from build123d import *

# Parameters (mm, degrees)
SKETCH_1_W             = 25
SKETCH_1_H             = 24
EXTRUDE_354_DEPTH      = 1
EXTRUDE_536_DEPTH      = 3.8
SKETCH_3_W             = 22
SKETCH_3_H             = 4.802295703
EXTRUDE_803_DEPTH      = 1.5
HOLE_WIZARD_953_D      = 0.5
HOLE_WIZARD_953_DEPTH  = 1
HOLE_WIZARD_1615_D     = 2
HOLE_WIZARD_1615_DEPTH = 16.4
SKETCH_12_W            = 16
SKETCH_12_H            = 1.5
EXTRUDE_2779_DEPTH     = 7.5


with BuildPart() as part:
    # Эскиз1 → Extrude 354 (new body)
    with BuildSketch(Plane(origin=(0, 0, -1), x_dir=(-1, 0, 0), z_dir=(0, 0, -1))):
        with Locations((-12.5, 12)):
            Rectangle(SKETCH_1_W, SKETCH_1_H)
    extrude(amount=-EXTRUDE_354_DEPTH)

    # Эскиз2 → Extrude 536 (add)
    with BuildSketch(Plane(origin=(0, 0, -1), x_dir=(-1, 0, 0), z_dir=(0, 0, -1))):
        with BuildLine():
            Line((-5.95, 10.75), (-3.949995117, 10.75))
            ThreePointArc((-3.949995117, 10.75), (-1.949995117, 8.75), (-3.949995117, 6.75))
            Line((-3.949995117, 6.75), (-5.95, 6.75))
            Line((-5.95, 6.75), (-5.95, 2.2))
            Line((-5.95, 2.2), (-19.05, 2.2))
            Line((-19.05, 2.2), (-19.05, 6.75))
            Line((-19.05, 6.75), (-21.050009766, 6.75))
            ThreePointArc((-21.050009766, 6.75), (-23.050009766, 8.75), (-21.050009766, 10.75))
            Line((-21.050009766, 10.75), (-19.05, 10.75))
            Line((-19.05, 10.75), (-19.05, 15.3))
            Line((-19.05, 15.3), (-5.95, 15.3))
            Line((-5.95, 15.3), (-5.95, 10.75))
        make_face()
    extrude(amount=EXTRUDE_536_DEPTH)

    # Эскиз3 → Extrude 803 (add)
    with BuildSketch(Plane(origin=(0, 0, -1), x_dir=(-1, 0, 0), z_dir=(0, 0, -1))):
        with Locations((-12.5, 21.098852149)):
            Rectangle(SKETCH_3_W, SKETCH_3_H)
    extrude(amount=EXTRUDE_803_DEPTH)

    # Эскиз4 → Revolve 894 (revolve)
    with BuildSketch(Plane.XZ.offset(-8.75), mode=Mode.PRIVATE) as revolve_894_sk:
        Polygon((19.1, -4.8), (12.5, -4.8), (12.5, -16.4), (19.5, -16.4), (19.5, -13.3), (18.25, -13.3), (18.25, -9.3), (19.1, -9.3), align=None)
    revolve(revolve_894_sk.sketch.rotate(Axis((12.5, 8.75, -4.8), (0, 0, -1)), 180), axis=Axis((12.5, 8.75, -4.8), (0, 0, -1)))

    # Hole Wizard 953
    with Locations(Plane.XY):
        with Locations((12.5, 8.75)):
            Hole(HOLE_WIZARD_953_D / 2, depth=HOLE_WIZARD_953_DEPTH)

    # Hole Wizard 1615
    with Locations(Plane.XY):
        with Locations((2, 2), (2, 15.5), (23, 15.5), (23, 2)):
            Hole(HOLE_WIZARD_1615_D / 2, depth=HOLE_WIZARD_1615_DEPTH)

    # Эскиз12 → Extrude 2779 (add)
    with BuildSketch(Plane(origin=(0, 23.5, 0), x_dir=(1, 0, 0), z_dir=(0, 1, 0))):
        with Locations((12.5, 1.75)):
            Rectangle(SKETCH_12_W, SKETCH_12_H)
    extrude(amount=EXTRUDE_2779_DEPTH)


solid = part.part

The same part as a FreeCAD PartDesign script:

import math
import FreeCAD as App
import Part
import Sketcher
Q = App.Units.Quantity


def add_polygon(sketch, points):
    """Adds a closed chain of lines whose ends are joined by coincident constraints."""
    first, n = sketch.GeometryCount, len(points)
    for a, b in zip(points, points[1:] + points[:1]):
        sketch.addGeometry(Part.LineSegment(App.Vector(*a, 0), App.Vector(*b, 0)), False)
    for i in range(n):
        sketch.addConstraint(Sketcher.Constraint("Coincident", first + i, 2, first + (i + 1) % n, 1))

doc = App.newDocument("Part")
body = doc.addObject("PartDesign::Body", "Body")

sketch1 = body.newObject("Sketcher::SketchObject", "Sketch")
sketch1.AttachmentSupport = (doc.getObject("XY_Plane"), [""])
sketch1.MapMode = "FlatFace"
sketch1.AttachmentOffset = App.Placement(App.Vector(0, 0, -1), App.Rotation())
add_polygon(sketch1, [(25, 24), (25, 0), (0, 0), (0, 24)])
sketch1.addConstraint([
    Sketcher.Constraint("Vertical", 0),
    Sketcher.Constraint("Horizontal", 1),
    Sketcher.Constraint("Vertical", 2),
    Sketcher.Constraint("Horizontal", 3),
    Sketcher.Constraint("Coincident", 1, 2, -1, 1),
    Sketcher.Constraint("DistanceX", 1, 2, 1, 1, Q("25 mm")),
    Sketcher.Constraint("DistanceY", 0, 2, 0, 1, Q("24 mm")),
])
pad1 = body.newObject("PartDesign::Pad", "Pad")
pad1.Profile = sketch1
pad1.Length = 1

sketch2 = body.newObject("Sketcher::SketchObject", "Sketch001")
sketch2.AttachmentSupport = (doc.getObject("XY_Plane"), [""])
sketch2.MapMode = "FlatFace"
sketch2.AttachmentOffset = App.Placement(App.Vector(0, 0, -1), App.Rotation())
sketch2.addGeometry([
    Part.LineSegment(App.Vector(3.949995, 10.75, 0), App.Vector(5.95, 10.75, 0)),
    Part.LineSegment(App.Vector(5.95, 10.75, 0), App.Vector(5.95, 15.3, 0)),
    Part.LineSegment(App.Vector(5.95, 15.3, 0), App.Vector(19.05, 15.3, 0)),
    Part.LineSegment(App.Vector(19.05, 15.3, 0), App.Vector(19.05, 10.75, 0)),
    Part.LineSegment(App.Vector(19.05, 10.75, 0), App.Vector(21.05001, 10.75, 0)),
    Part.ArcOfCircle(Part.Circle(App.Vector(21.05001, 8.75, 0), App.Vector(0, 0, 1), 2), math.radians(-90), math.radians(90)),
    Part.LineSegment(App.Vector(21.05001, 6.75, 0), App.Vector(19.05, 6.75, 0)),
    Part.LineSegment(App.Vector(19.05, 6.75, 0), App.Vector(19.05, 2.2, 0)),
    Part.LineSegment(App.Vector(19.05, 2.2, 0), App.Vector(5.95, 2.2, 0)),
    Part.LineSegment(App.Vector(5.95, 2.2, 0), App.Vector(5.95, 6.75, 0)),
    Part.LineSegment(App.Vector(5.95, 6.75, 0), App.Vector(3.949995, 6.75, 0)),
    Part.ArcOfCircle(Part.Circle(App.Vector(3.949995, 8.75, 0), App.Vector(0, 0, 1), 2), math.radians(90), math.radians(270)),
], False)
sketch2.addConstraint([
    Sketcher.Constraint("Coincident", 0, 2, 1, 1),
    Sketcher.Constraint("Coincident", 1, 2, 2, 1),
    Sketcher.Constraint("Coincident", 2, 2, 3, 1),
    Sketcher.Constraint("Coincident", 3, 2, 4, 1),
    Sketcher.Constraint("Tangent", 4, 2, 5, 2),
    Sketcher.Constraint("Tangent", 5, 1, 6, 1),
    Sketcher.Constraint("Coincident", 6, 2, 7, 1),
    Sketcher.Constraint("Coincident", 7, 2, 8, 1),
    Sketcher.Constraint("Coincident", 8, 2, 9, 1),
    Sketcher.Constraint("Coincident", 9, 2, 10, 1),
    Sketcher.Constraint("Tangent", 10, 2, 11, 2),
    Sketcher.Constraint("Tangent", 11, 1, 0, 1),
    Sketcher.Constraint("Horizontal", 0),
    Sketcher.Constraint("Vertical", 1),
    Sketcher.Constraint("Horizontal", 2),
    Sketcher.Constraint("Vertical", 3),
    Sketcher.Constraint("Horizontal", 4),
    Sketcher.Constraint("Horizontal", 6),
    Sketcher.Constraint("Vertical", 7),
    Sketcher.Constraint("Horizontal", 8),
    Sketcher.Constraint("Vertical", 9),
    Sketcher.Constraint("Horizontal", 10),
    Sketcher.Constraint("Equal", 5, 11),
    Sketcher.Constraint("Horizontal", 5, 3, 11, 3),
    Sketcher.Constraint("Vertical", 3, 2, 6, 2),
    Sketcher.Constraint("Vertical", 1, 2, 8, 2),
    Sketcher.Constraint("Equal", 3, 7),
    Sketcher.Constraint("Radius", 5, Q("2 mm")),
    Sketcher.Constraint("DistanceX", 2, 1, 2, 2, Q("13.1 mm")),
    Sketcher.Constraint("DistanceY", 1, 1, 1, 2, Q("4.55 mm")),
    Sketcher.Constraint("DistanceY", -1, 1, 1, 2, Q("15.3 mm")),
    Sketcher.Constraint("DistanceX", -1, 1, 0, 2, Q("5.95 mm")),
    Sketcher.Constraint("DistanceX", 4, 1, 4, 2, Q("2.00001 mm")),
    Sketcher.Constraint("DistanceX", 0, 1, 0, 2, Q("2.000005 mm")),
])
pad2 = body.newObject("PartDesign::Pad", "Pad001")
pad2.Profile = sketch2
pad2.Length = 3.8
pad2.Reversed = True

sketch3 = body.newObject("Sketcher::SketchObject", "Sketch002")
sketch3.AttachmentSupport = (doc.getObject("XY_Plane"), [""])
sketch3.MapMode = "FlatFace"
sketch3.AttachmentOffset = App.Placement(App.Vector(0, 0, -1), App.Rotation())
add_polygon(sketch3, [(23.5, 23.5), (23.5, 18.697704), (1.5, 18.697704), (1.5, 23.5)])
sketch3.addConstraint([
    Sketcher.Constraint("Vertical", 0),
    Sketcher.Constraint("Horizontal", 1),
    Sketcher.Constraint("Vertical", 2),
    Sketcher.Constraint("Horizontal", 3),
    Sketcher.Constraint("DistanceX", 1, 2, 1, 1, Q("22 mm")),
    Sketcher.Constraint("DistanceX", -1, 1, 0, 2, Q("23.5 mm")),
    Sketcher.Constraint("DistanceY", -1, 1, 2, 2, Q("23.5 mm")),
    Sketcher.Constraint("DistanceY", 0, 2, 0, 1, Q("4.802296 mm")),
])
pad3 = body.newObject("PartDesign::Pad", "Pad002")
pad3.Profile = sketch3
pad3.Length = 1.5
pad3.Reversed = True

sketch4 = body.newObject("Sketcher::SketchObject", "Sketch003")
sketch4.AttachmentSupport = (doc.getObject("XZ_Plane"), [""])
sketch4.MapMode = "FlatFace"
sketch4.AttachmentOffset = App.Placement(App.Vector(0, 0, -8.75), App.Rotation())
add_polygon(sketch4, [(19.1, -4.8), (12.5, -4.8), (12.5, -16.4), (19.5, -16.4), (19.5, -13.3), (18.25, -13.3), (18.25, -9.3), (19.1, -9.3)])
sketch4.addGeometry(Part.LineSegment(App.Vector(12.5, -4.8, 0), App.Vector(12.5, -16.4, 0)), True)
sketch4.addConstraint([
    Sketcher.Constraint("Horizontal", 0),
    Sketcher.Constraint("Vertical", 1),
    Sketcher.Constraint("Horizontal", 2),
    Sketcher.Constraint("Vertical", 3),
    Sketcher.Constraint("Horizontal", 4),
    Sketcher.Constraint("Vertical", 5),
    Sketcher.Constraint("Horizontal", 6),
    Sketcher.Constraint("Vertical", 7),
    Sketcher.Constraint("Vertical", 8),
    Sketcher.Constraint("Coincident", 8, 1, 0, 2),
    Sketcher.Constraint("Horizontal", 2, 2, 8, 2),
    Sketcher.Constraint("DistanceX", 2, 1, 2, 2, Q("7 mm")),
    Sketcher.Constraint("DistanceY", 5, 1, 5, 2, Q("4 mm")),
    Sketcher.Constraint("DistanceX", 0, 2, 0, 1, Q("6.6 mm")),
    Sketcher.Constraint("DistanceY", 1, 2, 1, 1, Q("11.6 mm")),
    Sketcher.Constraint("DistanceY", 3, 1, 3, 2, Q("3.1 mm")),
    Sketcher.Constraint("DistanceX", 4, 2, 4, 1, Q("1.25 mm")),
    Sketcher.Constraint("DistanceX", -1, 1, 0, 2, Q("12.5 mm")),
    Sketcher.Constraint("DistanceY", 0, 2, -1, 1, Q("4.8 mm")),
])
revolution = body.newObject("PartDesign::Revolution", "Revolution")
revolution.Profile = sketch4
revolution.ReferenceAxis = (sketch4, ["Axis0"])
revolution.Angle = 360

sketch5 = body.newObject("Sketcher::SketchObject", "Sketch004")
sketch5.AttachmentSupport = (doc.getObject("XY_Plane"), [""])
sketch5.MapMode = "FlatFace"
sketch5.addGeometry(Part.Circle(App.Vector(12.5, 8.75, 0), App.Vector(0, 0, 1), 0.25), False)
sketch5.addConstraint([
    Sketcher.Constraint("Diameter", 0, Q("0.5 mm")),
    Sketcher.Constraint("DistanceX", -1, 1, 0, 3, Q("12.5 mm")),
    Sketcher.Constraint("DistanceY", -1, 1, 0, 3, Q("8.75 mm")),
])
doc.recompute()
hole = body.newObject("PartDesign::Hole", "Hole")
hole.Profile = sketch5
hole.ThreadType = "None"
hole.Diameter = 0.5
hole.DepthType = "Dimension"
hole.Depth = 1
hole.DrillPoint = "Flat"

sketch6 = body.newObject("Sketcher::SketchObject", "Sketch005")
sketch6.AttachmentSupport = (doc.getObject("XY_Plane"), [""])
sketch6.MapMode = "FlatFace"
sketch6.addGeometry([
    Part.Circle(App.Vector(2, 2, 0), App.Vector(0, 0, 1), 1),
    Part.Circle(App.Vector(2, 15.5, 0), App.Vector(0, 0, 1), 1),
    Part.Circle(App.Vector(23, 15.5, 0), App.Vector(0, 0, 1), 1),
    Part.Circle(App.Vector(23, 2, 0), App.Vector(0, 0, 1), 1),
], False)
sketch6.addConstraint([
    Sketcher.Constraint("Equal", 0, 1),
    Sketcher.Constraint("Equal", 1, 2),
    Sketcher.Constraint("Equal", 2, 3),
    Sketcher.Constraint("Horizontal", 1, 3, 2, 3),
    Sketcher.Constraint("Horizontal", 0, 3, 3, 3),
    Sketcher.Constraint("Vertical", 0, 3, 1, 3),
    Sketcher.Constraint("Vertical", 2, 3, 3, 3),
    Sketcher.Constraint("Diameter", 0, Q("2 mm")),
    Sketcher.Constraint("DistanceX", -1, 1, 0, 3, Q("2 mm")),
    Sketcher.Constraint("DistanceY", -1, 1, 0, 3, Q("2 mm")),
    Sketcher.Constraint("DistanceX", -1, 1, 2, 3, Q("23 mm")),
    Sketcher.Constraint("DistanceY", -1, 1, 1, 3, Q("15.5 mm")),
])
doc.recompute()
hole2 = body.newObject("PartDesign::Hole", "Hole001")
hole2.Profile = sketch6
hole2.ThreadType = "None"
hole2.Diameter = 2
hole2.DepthType = "Dimension"
hole2.Depth = 16.4
hole2.DrillPoint = "Flat"

sketch7 = body.newObject("Sketcher::SketchObject", "Sketch006")
sketch7.AttachmentSupport = (doc.getObject("XZ_Plane"), [""])
sketch7.MapMode = "FlatFace"
sketch7.AttachmentOffset = App.Placement(App.Vector(0, 0, -23.5), App.Rotation())
add_polygon(sketch7, [(4.5, -2.5), (4.5, -1), (20.5, -1), (20.5, -2.5)])
sketch7.addConstraint([
    Sketcher.Constraint("Vertical", 0),
    Sketcher.Constraint("Horizontal", 1),
    Sketcher.Constraint("Vertical", 2),
    Sketcher.Constraint("Horizontal", 3),
    Sketcher.Constraint("DistanceX", 1, 1, 1, 2, Q("16 mm")),
    Sketcher.Constraint("DistanceY", 0, 1, 0, 2, Q("1.5 mm")),
    Sketcher.Constraint("DistanceY", 0, 2, -1, 1, Q("1 mm")),
    Sketcher.Constraint("DistanceX", -1, 1, 0, 2, Q("4.5 mm")),
])
pad4 = body.newObject("PartDesign::Pad", "Pad003")
pad4.Profile = sketch7
pad4.Length = 7.5
pad4.Reversed = True

doc.recompute()
